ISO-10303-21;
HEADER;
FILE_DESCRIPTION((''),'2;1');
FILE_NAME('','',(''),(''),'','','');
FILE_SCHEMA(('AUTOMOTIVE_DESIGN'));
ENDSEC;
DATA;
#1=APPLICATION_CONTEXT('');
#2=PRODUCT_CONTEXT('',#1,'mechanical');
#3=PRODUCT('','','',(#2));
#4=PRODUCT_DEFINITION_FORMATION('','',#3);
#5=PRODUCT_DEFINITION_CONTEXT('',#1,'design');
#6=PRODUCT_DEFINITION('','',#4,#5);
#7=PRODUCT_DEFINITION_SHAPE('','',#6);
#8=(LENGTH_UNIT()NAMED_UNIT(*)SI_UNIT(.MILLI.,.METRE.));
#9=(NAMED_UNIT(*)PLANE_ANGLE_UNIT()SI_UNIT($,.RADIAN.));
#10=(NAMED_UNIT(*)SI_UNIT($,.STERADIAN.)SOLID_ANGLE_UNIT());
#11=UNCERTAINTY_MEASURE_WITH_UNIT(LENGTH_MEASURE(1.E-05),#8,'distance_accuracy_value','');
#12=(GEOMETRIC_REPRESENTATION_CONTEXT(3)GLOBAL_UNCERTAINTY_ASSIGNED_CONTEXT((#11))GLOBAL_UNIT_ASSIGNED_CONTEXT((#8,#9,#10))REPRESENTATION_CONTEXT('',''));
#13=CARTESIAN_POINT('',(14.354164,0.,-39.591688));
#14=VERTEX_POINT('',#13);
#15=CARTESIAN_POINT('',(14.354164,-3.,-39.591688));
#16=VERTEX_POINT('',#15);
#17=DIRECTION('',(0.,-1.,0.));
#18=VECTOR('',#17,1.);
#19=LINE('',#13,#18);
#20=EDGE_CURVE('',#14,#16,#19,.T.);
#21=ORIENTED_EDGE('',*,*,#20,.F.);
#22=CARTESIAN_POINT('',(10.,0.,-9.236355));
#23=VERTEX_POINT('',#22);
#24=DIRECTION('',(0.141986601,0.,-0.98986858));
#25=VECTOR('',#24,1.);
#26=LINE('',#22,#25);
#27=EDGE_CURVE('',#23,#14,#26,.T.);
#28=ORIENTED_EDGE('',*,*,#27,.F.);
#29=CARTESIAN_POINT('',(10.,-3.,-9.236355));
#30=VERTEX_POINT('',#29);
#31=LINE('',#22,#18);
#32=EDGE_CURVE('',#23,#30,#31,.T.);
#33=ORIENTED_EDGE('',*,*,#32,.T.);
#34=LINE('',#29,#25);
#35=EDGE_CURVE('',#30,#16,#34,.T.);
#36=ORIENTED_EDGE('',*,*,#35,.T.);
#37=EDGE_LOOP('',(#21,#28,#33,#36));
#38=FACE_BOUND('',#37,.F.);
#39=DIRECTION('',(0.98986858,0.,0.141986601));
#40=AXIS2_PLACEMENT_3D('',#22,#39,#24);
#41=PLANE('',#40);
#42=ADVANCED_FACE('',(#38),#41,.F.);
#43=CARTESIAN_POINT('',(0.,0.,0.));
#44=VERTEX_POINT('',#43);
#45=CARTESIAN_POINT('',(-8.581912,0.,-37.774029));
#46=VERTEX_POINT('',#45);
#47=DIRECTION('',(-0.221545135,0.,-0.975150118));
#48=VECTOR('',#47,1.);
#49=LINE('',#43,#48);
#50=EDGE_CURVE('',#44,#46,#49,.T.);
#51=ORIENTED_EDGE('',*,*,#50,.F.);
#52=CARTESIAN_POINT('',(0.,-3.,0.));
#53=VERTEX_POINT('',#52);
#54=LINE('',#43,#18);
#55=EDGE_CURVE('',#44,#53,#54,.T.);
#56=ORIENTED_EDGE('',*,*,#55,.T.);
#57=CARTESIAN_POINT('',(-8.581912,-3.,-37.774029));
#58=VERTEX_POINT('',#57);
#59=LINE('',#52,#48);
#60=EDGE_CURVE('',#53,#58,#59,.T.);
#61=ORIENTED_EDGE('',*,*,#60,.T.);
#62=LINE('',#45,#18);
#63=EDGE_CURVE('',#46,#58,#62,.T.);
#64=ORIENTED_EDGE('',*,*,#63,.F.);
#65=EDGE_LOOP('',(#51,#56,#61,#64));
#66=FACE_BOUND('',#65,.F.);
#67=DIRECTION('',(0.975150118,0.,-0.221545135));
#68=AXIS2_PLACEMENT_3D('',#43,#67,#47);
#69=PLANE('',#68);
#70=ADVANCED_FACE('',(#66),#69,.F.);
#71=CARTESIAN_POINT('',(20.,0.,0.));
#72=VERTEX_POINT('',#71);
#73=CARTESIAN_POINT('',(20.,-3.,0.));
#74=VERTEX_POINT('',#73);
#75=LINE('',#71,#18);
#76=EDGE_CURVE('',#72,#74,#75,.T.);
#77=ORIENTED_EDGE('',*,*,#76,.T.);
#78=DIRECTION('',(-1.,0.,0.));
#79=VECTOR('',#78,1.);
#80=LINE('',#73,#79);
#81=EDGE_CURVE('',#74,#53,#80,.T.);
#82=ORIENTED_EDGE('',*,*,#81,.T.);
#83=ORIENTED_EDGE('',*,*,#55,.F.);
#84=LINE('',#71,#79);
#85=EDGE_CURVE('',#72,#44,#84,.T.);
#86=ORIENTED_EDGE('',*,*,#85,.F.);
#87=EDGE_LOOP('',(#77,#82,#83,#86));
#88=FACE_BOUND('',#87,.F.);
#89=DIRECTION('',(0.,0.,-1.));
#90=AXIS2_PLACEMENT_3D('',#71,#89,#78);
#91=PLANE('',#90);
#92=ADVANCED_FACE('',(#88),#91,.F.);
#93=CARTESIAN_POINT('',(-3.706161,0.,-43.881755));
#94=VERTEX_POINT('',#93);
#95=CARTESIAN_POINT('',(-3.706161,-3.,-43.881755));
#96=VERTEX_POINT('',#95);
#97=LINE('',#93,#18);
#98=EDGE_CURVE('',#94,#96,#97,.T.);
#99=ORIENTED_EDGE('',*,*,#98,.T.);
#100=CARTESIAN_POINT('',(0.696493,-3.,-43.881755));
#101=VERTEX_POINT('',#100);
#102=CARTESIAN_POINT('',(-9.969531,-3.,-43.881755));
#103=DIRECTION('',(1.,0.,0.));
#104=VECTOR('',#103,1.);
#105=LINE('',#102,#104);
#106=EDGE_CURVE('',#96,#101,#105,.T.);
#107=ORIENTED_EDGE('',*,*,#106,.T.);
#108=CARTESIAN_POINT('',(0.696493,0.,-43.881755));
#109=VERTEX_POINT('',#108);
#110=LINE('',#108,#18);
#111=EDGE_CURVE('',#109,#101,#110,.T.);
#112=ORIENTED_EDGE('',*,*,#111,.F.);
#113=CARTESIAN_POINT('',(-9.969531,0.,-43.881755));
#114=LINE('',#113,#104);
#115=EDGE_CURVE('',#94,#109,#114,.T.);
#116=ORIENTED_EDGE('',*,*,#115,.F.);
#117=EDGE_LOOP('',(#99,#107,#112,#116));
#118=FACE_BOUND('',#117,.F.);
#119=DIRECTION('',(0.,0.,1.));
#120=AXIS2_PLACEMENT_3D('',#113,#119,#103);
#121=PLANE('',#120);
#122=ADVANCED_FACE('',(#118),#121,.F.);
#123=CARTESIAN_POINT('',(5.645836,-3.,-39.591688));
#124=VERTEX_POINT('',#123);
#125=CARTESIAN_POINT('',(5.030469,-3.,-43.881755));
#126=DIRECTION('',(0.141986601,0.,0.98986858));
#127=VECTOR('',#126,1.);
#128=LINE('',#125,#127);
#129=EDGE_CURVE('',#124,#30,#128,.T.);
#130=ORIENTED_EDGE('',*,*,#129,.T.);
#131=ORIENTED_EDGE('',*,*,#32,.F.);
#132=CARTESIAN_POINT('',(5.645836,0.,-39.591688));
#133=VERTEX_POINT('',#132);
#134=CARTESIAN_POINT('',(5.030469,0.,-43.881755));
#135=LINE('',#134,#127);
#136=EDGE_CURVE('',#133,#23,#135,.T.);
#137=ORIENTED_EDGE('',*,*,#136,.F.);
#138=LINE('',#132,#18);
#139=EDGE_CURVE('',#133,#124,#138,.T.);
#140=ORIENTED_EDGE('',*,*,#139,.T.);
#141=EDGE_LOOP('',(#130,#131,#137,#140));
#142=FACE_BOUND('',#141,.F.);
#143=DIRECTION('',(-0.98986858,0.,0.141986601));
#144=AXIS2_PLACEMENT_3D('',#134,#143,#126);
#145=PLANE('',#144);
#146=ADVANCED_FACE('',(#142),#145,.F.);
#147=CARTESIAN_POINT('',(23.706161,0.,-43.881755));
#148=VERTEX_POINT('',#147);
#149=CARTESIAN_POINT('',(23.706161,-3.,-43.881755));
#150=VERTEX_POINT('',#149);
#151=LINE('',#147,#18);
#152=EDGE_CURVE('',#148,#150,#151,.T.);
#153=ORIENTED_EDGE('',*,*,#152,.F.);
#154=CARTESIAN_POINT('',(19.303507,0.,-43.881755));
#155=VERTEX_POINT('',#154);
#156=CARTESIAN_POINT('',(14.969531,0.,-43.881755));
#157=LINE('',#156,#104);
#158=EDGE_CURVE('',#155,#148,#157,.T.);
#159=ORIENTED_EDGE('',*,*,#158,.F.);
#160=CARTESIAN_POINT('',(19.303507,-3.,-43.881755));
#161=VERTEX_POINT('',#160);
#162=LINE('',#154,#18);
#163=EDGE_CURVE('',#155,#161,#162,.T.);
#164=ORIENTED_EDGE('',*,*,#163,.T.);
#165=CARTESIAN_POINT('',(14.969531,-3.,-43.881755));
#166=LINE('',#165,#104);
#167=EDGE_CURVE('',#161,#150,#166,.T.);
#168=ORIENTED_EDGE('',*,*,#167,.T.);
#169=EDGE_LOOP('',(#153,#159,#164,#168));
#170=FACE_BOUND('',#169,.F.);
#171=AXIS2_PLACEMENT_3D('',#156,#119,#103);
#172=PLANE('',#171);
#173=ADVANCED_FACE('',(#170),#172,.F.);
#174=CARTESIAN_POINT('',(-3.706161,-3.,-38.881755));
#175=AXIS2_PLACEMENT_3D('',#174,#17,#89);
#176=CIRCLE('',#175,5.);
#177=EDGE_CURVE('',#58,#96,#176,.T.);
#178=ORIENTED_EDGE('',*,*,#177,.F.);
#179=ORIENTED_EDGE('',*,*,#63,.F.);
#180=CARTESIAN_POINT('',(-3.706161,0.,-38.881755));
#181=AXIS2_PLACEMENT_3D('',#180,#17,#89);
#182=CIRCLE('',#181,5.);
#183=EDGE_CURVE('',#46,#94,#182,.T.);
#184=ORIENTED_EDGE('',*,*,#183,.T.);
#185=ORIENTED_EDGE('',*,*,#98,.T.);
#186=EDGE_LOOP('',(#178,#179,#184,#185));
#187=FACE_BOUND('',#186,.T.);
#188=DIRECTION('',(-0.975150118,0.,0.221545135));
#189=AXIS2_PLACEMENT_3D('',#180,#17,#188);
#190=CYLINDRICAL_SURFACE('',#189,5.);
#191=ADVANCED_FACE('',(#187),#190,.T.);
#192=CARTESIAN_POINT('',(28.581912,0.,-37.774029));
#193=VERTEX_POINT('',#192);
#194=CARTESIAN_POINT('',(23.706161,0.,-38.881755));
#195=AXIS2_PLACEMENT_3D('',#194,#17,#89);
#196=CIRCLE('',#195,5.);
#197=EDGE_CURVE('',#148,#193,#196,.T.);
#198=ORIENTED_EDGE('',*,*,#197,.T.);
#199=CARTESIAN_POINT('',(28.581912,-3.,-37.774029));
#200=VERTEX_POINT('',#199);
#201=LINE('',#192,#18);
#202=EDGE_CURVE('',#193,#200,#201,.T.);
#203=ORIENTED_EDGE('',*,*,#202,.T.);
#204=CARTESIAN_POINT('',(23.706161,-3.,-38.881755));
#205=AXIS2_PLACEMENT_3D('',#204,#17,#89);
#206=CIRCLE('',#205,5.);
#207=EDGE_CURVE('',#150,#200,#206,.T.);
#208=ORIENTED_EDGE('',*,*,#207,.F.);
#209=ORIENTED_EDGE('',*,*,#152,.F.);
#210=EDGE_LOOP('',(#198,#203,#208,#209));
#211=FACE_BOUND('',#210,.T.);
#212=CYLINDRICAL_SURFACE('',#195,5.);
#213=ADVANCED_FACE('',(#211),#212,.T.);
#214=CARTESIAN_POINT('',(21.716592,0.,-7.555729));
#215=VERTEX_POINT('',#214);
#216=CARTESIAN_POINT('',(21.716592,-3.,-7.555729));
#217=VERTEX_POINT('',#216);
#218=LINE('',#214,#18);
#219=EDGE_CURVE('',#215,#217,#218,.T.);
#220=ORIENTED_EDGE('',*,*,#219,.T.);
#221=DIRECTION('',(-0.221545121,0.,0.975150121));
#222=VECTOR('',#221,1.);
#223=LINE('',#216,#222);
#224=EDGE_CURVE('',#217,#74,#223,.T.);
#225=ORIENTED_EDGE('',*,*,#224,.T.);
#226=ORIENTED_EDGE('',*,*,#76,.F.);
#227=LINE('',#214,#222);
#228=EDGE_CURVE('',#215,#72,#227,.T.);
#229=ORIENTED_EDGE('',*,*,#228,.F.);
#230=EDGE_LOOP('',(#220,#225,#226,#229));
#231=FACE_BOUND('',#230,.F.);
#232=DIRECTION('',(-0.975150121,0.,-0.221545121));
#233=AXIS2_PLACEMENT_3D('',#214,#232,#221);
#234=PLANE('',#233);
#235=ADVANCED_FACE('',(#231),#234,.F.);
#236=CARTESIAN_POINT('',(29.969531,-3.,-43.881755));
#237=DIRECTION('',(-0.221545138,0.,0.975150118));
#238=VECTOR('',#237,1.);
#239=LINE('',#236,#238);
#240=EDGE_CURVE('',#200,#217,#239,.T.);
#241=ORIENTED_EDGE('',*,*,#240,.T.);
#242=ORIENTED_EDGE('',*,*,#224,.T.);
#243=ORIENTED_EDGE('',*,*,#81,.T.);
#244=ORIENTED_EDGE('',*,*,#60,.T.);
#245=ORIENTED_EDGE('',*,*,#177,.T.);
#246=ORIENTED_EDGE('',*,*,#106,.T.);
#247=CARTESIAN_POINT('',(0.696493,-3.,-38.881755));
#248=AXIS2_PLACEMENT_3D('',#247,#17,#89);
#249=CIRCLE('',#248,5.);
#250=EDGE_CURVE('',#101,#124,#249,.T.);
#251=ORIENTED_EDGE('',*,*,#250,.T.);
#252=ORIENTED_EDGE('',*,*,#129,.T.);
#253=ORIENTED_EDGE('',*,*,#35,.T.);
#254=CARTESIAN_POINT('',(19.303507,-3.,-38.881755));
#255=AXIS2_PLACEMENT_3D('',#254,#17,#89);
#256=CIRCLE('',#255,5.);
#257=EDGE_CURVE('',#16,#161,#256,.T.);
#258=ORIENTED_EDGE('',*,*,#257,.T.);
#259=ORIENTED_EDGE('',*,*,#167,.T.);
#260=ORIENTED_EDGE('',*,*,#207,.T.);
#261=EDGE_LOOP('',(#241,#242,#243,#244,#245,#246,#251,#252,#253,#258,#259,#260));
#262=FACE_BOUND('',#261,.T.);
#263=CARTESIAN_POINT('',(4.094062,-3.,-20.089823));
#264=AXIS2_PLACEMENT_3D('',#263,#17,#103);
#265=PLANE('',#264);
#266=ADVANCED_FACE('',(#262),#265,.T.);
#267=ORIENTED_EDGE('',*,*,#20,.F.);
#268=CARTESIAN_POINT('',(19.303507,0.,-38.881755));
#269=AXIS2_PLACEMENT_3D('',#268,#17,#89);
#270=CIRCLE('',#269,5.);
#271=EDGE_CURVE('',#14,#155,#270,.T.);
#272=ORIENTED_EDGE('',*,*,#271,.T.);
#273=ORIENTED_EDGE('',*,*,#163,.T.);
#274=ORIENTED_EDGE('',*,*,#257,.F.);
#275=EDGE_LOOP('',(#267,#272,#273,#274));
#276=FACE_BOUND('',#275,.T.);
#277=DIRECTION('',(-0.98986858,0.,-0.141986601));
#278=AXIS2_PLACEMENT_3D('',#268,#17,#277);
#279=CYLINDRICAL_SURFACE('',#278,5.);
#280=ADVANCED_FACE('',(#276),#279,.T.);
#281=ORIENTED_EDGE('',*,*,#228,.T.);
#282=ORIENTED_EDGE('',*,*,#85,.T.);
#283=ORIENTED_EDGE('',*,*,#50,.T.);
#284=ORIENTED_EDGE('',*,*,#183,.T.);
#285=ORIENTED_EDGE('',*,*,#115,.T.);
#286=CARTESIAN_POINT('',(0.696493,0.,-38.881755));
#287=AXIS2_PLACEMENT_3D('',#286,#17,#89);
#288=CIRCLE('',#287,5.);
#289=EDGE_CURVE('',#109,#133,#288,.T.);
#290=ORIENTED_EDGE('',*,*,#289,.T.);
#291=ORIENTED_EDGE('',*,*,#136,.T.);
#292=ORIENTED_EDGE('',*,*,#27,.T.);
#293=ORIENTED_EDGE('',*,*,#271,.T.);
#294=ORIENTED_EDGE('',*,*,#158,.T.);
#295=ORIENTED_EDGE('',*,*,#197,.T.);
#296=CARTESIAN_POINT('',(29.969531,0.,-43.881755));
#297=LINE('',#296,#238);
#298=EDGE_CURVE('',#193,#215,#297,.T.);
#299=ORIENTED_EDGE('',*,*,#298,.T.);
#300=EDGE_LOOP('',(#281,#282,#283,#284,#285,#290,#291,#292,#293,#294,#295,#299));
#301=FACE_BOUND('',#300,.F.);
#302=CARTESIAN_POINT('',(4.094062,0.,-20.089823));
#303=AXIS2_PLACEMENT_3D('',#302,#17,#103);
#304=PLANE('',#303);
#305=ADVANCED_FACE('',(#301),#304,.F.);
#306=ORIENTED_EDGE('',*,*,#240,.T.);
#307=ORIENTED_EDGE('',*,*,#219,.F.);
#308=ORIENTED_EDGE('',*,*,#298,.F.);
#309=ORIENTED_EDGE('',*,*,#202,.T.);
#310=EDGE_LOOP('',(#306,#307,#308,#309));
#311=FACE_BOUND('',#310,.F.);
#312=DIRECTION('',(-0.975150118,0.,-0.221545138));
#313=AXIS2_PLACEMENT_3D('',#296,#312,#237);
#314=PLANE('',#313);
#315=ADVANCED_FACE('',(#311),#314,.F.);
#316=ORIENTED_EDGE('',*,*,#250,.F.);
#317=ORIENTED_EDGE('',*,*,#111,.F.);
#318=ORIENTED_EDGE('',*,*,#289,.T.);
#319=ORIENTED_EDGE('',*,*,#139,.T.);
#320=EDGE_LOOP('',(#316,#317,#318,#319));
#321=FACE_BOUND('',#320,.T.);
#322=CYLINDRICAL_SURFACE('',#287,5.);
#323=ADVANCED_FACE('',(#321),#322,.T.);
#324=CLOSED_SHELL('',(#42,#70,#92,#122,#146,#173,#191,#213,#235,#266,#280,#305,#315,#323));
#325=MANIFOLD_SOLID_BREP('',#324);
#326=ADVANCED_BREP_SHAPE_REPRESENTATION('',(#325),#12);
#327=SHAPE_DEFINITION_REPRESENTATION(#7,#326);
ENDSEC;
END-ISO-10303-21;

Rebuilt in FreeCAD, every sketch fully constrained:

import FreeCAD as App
import Part
import Sketcher


def edges_at(feature, points):
    """Names of the edges that pass closest to the given points."""
    edges = feature.Shape.Edges
    near = lambda p: min(range(len(edges)), key=lambda i: edges[i].distToShape(Part.Vertex(*p))[0])
    return sorted({f"Edge{near(p) + 1}" for p in points})

doc = App.newDocument("Part")
body = doc.addObject("PartDesign::Body", "Body")

# Sketch on XZ plane
sketch1 = body.newObject("Sketcher::SketchObject", "Sketch")
sketch1.AttachmentSupport = (doc.getObject("XZ_Plane"), [""])
sketch1.MapMode = "FlatFace"
sketch1.addGeometry(Part.LineSegment(App.Vector(20, 0, 0), App.Vector(0, 0, 0)), False)
sketch1.addGeometry(Part.LineSegment(App.Vector(0, 0, 0), App.Vector(-10, -44, 0)), False)
sketch1.addGeometry(Part.LineSegment(App.Vector(-10, -44, 0), App.Vector(5, -44, 0)), False)
sketch1.addGeometry(Part.LineSegment(App.Vector(5, -44, 0), App.Vector(10, -9, 0)), False)
sketch1.addGeometry(Part.LineSegment(App.Vector(10, -9, 0), App.Vector(15, -44, 0)), False)
sketch1.addGeometry(Part.LineSegment(App.Vector(15, -44, 0), App.Vector(30, -44, 0)), False)
sketch1.addGeometry(Part.LineSegment(App.Vector(30, -44, 0), App.Vector(22, -8, 0)), False)
sketch1.addGeometry(Part.LineSegment(App.Vector(22, -8, 0), App.Vector(20, 0, 0)), False)
sketch1.addConstraint(Sketcher.Constraint("Coincident", 0, 2, 1, 1))
sketch1.addConstraint(Sketcher.Constraint("Coincident", 1, 2, 2, 1))
sketch1.addConstraint(Sketcher.Constraint("Coincident", 2, 2, 3, 1))
sketch1.addConstraint(Sketcher.Constraint("Coincident", 3, 2, 4, 1))
sketch1.addConstraint(Sketcher.Constraint("Coincident", 4, 2, 5, 1))
sketch1.addConstraint(Sketcher.Constraint("Coincident", 5, 2, 6, 1))
sketch1.addConstraint(Sketcher.Constraint("Coincident", 6, 2, 7, 1))
sketch1.addConstraint(Sketcher.Constraint("Coincident", 7, 2, 0, 1))
sketch1.addConstraint(Sketcher.Constraint("Horizontal", 0))
sketch1.addConstraint(Sketcher.Constraint("Horizontal", 2))
sketch1.addConstraint(Sketcher.Constraint("Horizontal", 5))
sketch1.addConstraint(Sketcher.Constraint("Coincident", 0, 2, -1, 1))
sketch1.addConstraint(Sketcher.Constraint("Parallel", 6, 7))
sketch1.addConstraint(Sketcher.Constraint("Horizontal", 2, 2, 4, 2))
sketch1.addConstraint(Sketcher.Constraint("Equal", 2, 5))
sketch1.addConstraint(Sketcher.Constraint("Equal", 3, 4))
sketch1.addConstraint(Sketcher.Constraint("DistanceX", 0, 2, 0, 1, 20.0))
sketch1.addConstraint(Sketcher.Constraint("DistanceX", 2, 1, 2, 2, 15.0))
sketch1.addConstraint(Sketcher.Constraint("Distance", 1, 45.0))
sketch1.addConstraint(Sketcher.Constraint("Distance", 3, 35.0))
sketch1.addConstraint(Sketcher.Constraint("DistanceX", -1, 1, 3, 2, 10.0))
sketch1.addConstraint(Sketcher.Constraint("DistanceY", 2, 2, 3, 2, 34.6454))
sketch1.addConstraint(Sketcher.Constraint("DistanceX", -1, 1, 6, 2, 21.716592))
pad1 = body.newObject("PartDesign::Pad", "Pad")
pad1.Profile = sketch1
pad1.Length = 3
doc.recompute()

fillet = body.newObject("PartDesign::Fillet", "Fillet")
fillet.Base = (pad1, edges_at(pad1, [
    (-9.97, -1.5, -43.882),
    (5.03, -1.5, -43.882),
    (14.97, -1.5, -43.882),
    (29.97, -1.5, -43.882),
]))
fillet.Radius = 5

doc.recompute()
